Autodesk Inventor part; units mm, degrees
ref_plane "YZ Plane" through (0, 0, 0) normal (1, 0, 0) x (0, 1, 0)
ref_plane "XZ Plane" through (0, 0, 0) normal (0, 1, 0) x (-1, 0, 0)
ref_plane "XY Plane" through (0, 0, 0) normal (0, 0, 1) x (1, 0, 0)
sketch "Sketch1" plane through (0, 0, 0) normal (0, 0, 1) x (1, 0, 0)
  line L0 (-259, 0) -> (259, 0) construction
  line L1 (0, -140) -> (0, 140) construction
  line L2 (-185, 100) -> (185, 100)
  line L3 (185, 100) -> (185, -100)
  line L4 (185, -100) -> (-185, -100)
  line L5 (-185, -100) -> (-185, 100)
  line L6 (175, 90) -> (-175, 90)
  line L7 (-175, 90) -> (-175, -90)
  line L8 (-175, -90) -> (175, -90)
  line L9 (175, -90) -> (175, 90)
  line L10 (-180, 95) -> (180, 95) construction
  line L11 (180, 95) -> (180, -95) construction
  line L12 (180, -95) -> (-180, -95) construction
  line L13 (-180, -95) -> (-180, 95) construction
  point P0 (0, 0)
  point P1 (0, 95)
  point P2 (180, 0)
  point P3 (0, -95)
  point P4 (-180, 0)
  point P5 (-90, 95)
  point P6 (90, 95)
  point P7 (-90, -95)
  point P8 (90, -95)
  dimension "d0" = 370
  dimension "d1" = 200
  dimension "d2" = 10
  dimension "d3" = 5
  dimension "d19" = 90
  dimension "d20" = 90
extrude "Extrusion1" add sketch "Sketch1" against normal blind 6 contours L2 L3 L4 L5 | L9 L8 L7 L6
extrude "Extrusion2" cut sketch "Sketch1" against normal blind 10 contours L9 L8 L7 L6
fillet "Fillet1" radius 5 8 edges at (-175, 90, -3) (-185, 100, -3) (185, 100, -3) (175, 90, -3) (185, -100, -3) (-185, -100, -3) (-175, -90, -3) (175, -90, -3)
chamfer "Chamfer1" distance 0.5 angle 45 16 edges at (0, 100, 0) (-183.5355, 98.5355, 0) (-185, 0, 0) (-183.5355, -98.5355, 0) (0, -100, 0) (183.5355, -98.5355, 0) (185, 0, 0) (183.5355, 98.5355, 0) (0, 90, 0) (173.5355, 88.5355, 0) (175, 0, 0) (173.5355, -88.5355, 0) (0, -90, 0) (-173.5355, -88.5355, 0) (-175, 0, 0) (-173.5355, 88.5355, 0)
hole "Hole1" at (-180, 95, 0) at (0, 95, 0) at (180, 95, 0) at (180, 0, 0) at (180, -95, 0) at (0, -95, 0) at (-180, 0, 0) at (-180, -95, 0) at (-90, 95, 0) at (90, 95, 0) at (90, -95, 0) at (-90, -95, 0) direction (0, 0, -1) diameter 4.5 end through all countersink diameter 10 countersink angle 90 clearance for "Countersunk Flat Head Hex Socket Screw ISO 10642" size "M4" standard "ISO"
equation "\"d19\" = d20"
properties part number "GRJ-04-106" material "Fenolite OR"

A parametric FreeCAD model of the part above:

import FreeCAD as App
import Part
import Sketcher
from FreeCAD import Vector


def edges_at(feature, points):
    """Names of the edges that pass closest to the given points."""
    edges = feature.Shape.Edges
    near = lambda p: min(range(len(edges)), key=lambda i: edges[i].distToShape(Part.Vertex(*p))[0])
    return sorted({f"Edge{near(p) + 1}" for p in points})


def add_polygon(sketch, points):
    """Adds a closed chain of lines whose ends are joined by coincident constraints."""
    first, n = sketch.GeometryCount, len(points)
    for a, b in zip(points, points[1:] + points[:1]):
        sketch.addGeometry(Part.LineSegment(App.Vector(*a, 0), App.Vector(*b, 0)), False)
    for i in range(n):
        sketch.addConstraint(Sketcher.Constraint("Coincident", first + i, 2, first + (i + 1) % n, 1))

doc = App.newDocument("Part")
body = doc.addObject("PartDesign::Body", "Body")

# Sketch on XY plane
sketch1 = doc.addObject("Sketcher::SketchObject", "Sketch")
body.addObject(sketch1)
sketch1.AttachmentSupport = (doc.XY_Plane, [""])
sketch1.MapMode = "FlatFace"
add_polygon(sketch1, [(185, 100), (-185, 100), (-185, -100), (185, -100)])  # lines 0-3
sketch1.addConstraint(Sketcher.Constraint("Horizontal", 0))
sketch1.addConstraint(Sketcher.Constraint("Vertical", 1))
sketch1.addConstraint(Sketcher.Constraint("Horizontal", 2))
sketch1.addConstraint(Sketcher.Constraint("Vertical", 3))
sketch1.addConstraint(Sketcher.Constraint("Symmetric", 0, 2, 2, 2, -1, 1))
sketch1.addConstraint(Sketcher.Constraint("DistanceX", 0, 2, 0, 1, 370.0))
sketch1.addConstraint(Sketcher.Constraint("DistanceY", 1, 2, 1, 1, 200.0))
pad1 = doc.addObject("PartDesign::Pad", "Pad")
body.addObject(pad1)
pad1.Profile = sketch1
pad1.Length = 6
pad1.Reversed = True

# Sketch on XY plane
sketch2 = doc.addObject("Sketcher::SketchObject", "Sketch001")
body.addObject(sketch2)
sketch2.AttachmentSupport = (doc.XY_Plane, [""])
sketch2.MapMode = "FlatFace"
add_polygon(sketch2, [(175, -90), (175, 90), (-175, 90), (-175, -90)])  # lines 0-3
sketch2.addConstraint(Sketcher.Constraint("Vertical", 0))
sketch2.addConstraint(Sketcher.Constraint("Horizontal", 1))
sketch2.addConstraint(Sketcher.Constraint("Vertical", 2))
sketch2.addConstraint(Sketcher.Constraint("Horizontal", 3))
sketch2.addConstraint(Sketcher.Constraint("Symmetric", 0, 2, 2, 2, -1, 1))
sketch2.addConstraint(Sketcher.Constraint("DistanceY", -1, 1, 0, 2, 90.0))
sketch2.addConstraint(Sketcher.Constraint("DistanceX", 1, 2, 1, 1, 350.0))
pocket1 = doc.addObject("PartDesign::Pocket", "Pocket")
body.addObject(pocket1)
pocket1.Profile = sketch2
pocket1.Length = 10
doc.recompute()

fillet = doc.addObject("PartDesign::Fillet", "Fillet")
body.addObject(fillet)
fillet.Base = (pocket1, edges_at(pocket1, [
    (-175, 90, -3),
    (-185, 100, -3),
    (185, 100, -3),
    (175, 90, -3),
    (185, -100, -3),
    (-185, -100, -3),
    (-175, -90, -3),
    (175, -90, -3),
]))
fillet.Radius = 5
doc.recompute()

chamfer = doc.addObject("PartDesign::Chamfer", "Chamfer")
body.addObject(chamfer)
chamfer.Base = (fillet, edges_at(fillet, [
    (0, 100, 0),
    (-183.536, 98.535, 0),
    (-185, 0, 0),
    (-183.536, -98.535, 0),
    (0, -100, 0),
    (183.536, -98.535, 0),
    (185, 0, 0),
    (183.536, 98.535, 0),
    (0, 90, 0),
    (173.536, 88.535, 0),
    (175, 0, 0),
    (173.536, -88.535, 0),
    (0, -90, 0),
    (-173.536, -88.535, 0),
    (-175, 0, 0),
    (-173.536, 88.535, 0),
]))
chamfer.Size = 0.5

# Sketch on XY plane
sketch3 = doc.addObject("Sketcher::SketchObject", "Sketch002")
body.addObject(sketch3)
sketch3.AttachmentSupport = (doc.XY_Plane, [""])
sketch3.MapMode = "FlatFace"
sketch3.addGeometry(Part.Circle(Vector(-180, 95, 0), Vector(0, 0, 1), 2.2), False)
sketch3.addGeometry(Part.Circle(Vector(0, 95, 0), Vector(0, 0, 1), 2.2), False)
sketch3.addGeometry(Part.Circle(Vector(180, 95, 0), Vector(0, 0, 1), 2.2), False)
sketch3.addGeometry(Part.Circle(Vector(180, 0, 0), Vector(0, 0, 1), 2.2), False)
sketch3.addGeometry(Part.Circle(Vector(180, -95, 0), Vector(0, 0, 1), 2.2), False)
sketch3.addGeometry(Part.Circle(Vector(0, -95, 0), Vector(0, 0, 1), 2.2), False)
sketch3.addGeometry(Part.Circle(Vector(-180, 0, 0), Vector(0, 0, 1), 2.2), False)
sketch3.addGeometry(Part.Circle(Vector(-180, -95, 0), Vector(0, 0, 1), 2.2), False)
sketch3.addGeometry(Part.Circle(Vector(-90, 95, 0), Vector(0, 0, 1), 2.2), False)
sketch3.addGeometry(Part.Circle(Vector(90, 95, 0), Vector(0, 0, 1), 2.2), False)
sketch3.addGeometry(Part.Circle(Vector(90, -95, 0), Vector(0, 0, 1), 2.2), False)
sketch3.addGeometry(Part.Circle(Vector(-90, -95, 0), Vector(0, 0, 1), 2.2), False)
sketch3.addConstraint(Sketcher.Constraint("Equal", 0, 1))
sketch3.addConstraint(Sketcher.Constraint("Equal", 1, 2))
sketch3.addConstraint(Sketcher.Constraint("Equal", 2, 3))
sketch3.addConstraint(Sketcher.Constraint("Equal", 3, 4))
sketch3.addConstraint(Sketcher.Constraint("Equal", 4, 5))
sketch3.addConstraint(Sketcher.Constraint("Equal", 5, 6))
sketch3.addConstraint(Sketcher.Constraint("Equal", 6, 7))
sketch3.addConstraint(Sketcher.Constraint("Equal", 7, 8))
sketch3.addConstraint(Sketcher.Constraint("Equal", 8, 9))
sketch3.addConstraint(Sketcher.Constraint("Equal", 9, 10))
sketch3.addConstraint(Sketcher.Constraint("Equal", 10, 11))
sketch3.addConstraint(Sketcher.Constraint("Symmetric", 0, 3, 4, 3, -1, 1))
sketch3.addConstraint(Sketcher.Constraint("Symmetric", 1, 3, 5, 3, -1, 1))
sketch3.addConstraint(Sketcher.Constraint("Symmetric", 3, 3, 6, 3, -1, 1))
sketch3.addConstraint(Sketcher.Constraint("Symmetric", 2, 3, 7, 3, -1, 1))
sketch3.addConstraint(Sketcher.Constraint("Symmetric", 8, 3, 10, 3, -1, 1))
sketch3.addConstraint(Sketcher.Constraint("Symmetric", 9, 3, 11, 3, -1, 1))
sketch3.addConstraint(Sketcher.Constraint("Symmetric", 0, 3, 2, 3, -2))
sketch3.addConstraint(Sketcher.Constraint("Symmetric", 8, 3, 9, 3, -2))
sketch3.addConstraint(Sketcher.Constraint("PointOnObject", 1, 3, -2))
sketch3.addConstraint(Sketcher.Constraint("PointOnObject", 3, 3, -1))
sketch3.addConstraint(Sketcher.Constraint("Horizontal", 0, 3, 1, 3))
sketch3.addConstraint(Sketcher.Constraint("Horizontal", 2, 3, 8, 3))
sketch3.addConstraint(Sketcher.Constraint("Vertical", 2, 3, 3, 3))
sketch3.addConstraint(Sketcher.Constraint("Diameter", 0, 4.5))
sketch3.addConstraint(Sketcher.Constraint("DistanceX", 0, 3, -1, 1, 180.0))
sketch3.addConstraint(Sketcher.Constraint("DistanceY", -1, 1, 0, 3, 95.0))
sketch3.addConstraint(Sketcher.Constraint("DistanceX", 8, 3, -1, 1, 90.0))
doc.recompute()
hole = doc.addObject("PartDesign::Hole", "Hole")
body.addObject(hole)
hole.Profile = sketch3
hole.ThreadType = "None"
hole.Diameter = 4.5
hole.DepthType = "ThroughAll"
hole.HoleCutType = "Countersink"
hole.HoleCutDiameter = 10
hole.HoleCutCountersinkAngle = 90

doc.recompute()
